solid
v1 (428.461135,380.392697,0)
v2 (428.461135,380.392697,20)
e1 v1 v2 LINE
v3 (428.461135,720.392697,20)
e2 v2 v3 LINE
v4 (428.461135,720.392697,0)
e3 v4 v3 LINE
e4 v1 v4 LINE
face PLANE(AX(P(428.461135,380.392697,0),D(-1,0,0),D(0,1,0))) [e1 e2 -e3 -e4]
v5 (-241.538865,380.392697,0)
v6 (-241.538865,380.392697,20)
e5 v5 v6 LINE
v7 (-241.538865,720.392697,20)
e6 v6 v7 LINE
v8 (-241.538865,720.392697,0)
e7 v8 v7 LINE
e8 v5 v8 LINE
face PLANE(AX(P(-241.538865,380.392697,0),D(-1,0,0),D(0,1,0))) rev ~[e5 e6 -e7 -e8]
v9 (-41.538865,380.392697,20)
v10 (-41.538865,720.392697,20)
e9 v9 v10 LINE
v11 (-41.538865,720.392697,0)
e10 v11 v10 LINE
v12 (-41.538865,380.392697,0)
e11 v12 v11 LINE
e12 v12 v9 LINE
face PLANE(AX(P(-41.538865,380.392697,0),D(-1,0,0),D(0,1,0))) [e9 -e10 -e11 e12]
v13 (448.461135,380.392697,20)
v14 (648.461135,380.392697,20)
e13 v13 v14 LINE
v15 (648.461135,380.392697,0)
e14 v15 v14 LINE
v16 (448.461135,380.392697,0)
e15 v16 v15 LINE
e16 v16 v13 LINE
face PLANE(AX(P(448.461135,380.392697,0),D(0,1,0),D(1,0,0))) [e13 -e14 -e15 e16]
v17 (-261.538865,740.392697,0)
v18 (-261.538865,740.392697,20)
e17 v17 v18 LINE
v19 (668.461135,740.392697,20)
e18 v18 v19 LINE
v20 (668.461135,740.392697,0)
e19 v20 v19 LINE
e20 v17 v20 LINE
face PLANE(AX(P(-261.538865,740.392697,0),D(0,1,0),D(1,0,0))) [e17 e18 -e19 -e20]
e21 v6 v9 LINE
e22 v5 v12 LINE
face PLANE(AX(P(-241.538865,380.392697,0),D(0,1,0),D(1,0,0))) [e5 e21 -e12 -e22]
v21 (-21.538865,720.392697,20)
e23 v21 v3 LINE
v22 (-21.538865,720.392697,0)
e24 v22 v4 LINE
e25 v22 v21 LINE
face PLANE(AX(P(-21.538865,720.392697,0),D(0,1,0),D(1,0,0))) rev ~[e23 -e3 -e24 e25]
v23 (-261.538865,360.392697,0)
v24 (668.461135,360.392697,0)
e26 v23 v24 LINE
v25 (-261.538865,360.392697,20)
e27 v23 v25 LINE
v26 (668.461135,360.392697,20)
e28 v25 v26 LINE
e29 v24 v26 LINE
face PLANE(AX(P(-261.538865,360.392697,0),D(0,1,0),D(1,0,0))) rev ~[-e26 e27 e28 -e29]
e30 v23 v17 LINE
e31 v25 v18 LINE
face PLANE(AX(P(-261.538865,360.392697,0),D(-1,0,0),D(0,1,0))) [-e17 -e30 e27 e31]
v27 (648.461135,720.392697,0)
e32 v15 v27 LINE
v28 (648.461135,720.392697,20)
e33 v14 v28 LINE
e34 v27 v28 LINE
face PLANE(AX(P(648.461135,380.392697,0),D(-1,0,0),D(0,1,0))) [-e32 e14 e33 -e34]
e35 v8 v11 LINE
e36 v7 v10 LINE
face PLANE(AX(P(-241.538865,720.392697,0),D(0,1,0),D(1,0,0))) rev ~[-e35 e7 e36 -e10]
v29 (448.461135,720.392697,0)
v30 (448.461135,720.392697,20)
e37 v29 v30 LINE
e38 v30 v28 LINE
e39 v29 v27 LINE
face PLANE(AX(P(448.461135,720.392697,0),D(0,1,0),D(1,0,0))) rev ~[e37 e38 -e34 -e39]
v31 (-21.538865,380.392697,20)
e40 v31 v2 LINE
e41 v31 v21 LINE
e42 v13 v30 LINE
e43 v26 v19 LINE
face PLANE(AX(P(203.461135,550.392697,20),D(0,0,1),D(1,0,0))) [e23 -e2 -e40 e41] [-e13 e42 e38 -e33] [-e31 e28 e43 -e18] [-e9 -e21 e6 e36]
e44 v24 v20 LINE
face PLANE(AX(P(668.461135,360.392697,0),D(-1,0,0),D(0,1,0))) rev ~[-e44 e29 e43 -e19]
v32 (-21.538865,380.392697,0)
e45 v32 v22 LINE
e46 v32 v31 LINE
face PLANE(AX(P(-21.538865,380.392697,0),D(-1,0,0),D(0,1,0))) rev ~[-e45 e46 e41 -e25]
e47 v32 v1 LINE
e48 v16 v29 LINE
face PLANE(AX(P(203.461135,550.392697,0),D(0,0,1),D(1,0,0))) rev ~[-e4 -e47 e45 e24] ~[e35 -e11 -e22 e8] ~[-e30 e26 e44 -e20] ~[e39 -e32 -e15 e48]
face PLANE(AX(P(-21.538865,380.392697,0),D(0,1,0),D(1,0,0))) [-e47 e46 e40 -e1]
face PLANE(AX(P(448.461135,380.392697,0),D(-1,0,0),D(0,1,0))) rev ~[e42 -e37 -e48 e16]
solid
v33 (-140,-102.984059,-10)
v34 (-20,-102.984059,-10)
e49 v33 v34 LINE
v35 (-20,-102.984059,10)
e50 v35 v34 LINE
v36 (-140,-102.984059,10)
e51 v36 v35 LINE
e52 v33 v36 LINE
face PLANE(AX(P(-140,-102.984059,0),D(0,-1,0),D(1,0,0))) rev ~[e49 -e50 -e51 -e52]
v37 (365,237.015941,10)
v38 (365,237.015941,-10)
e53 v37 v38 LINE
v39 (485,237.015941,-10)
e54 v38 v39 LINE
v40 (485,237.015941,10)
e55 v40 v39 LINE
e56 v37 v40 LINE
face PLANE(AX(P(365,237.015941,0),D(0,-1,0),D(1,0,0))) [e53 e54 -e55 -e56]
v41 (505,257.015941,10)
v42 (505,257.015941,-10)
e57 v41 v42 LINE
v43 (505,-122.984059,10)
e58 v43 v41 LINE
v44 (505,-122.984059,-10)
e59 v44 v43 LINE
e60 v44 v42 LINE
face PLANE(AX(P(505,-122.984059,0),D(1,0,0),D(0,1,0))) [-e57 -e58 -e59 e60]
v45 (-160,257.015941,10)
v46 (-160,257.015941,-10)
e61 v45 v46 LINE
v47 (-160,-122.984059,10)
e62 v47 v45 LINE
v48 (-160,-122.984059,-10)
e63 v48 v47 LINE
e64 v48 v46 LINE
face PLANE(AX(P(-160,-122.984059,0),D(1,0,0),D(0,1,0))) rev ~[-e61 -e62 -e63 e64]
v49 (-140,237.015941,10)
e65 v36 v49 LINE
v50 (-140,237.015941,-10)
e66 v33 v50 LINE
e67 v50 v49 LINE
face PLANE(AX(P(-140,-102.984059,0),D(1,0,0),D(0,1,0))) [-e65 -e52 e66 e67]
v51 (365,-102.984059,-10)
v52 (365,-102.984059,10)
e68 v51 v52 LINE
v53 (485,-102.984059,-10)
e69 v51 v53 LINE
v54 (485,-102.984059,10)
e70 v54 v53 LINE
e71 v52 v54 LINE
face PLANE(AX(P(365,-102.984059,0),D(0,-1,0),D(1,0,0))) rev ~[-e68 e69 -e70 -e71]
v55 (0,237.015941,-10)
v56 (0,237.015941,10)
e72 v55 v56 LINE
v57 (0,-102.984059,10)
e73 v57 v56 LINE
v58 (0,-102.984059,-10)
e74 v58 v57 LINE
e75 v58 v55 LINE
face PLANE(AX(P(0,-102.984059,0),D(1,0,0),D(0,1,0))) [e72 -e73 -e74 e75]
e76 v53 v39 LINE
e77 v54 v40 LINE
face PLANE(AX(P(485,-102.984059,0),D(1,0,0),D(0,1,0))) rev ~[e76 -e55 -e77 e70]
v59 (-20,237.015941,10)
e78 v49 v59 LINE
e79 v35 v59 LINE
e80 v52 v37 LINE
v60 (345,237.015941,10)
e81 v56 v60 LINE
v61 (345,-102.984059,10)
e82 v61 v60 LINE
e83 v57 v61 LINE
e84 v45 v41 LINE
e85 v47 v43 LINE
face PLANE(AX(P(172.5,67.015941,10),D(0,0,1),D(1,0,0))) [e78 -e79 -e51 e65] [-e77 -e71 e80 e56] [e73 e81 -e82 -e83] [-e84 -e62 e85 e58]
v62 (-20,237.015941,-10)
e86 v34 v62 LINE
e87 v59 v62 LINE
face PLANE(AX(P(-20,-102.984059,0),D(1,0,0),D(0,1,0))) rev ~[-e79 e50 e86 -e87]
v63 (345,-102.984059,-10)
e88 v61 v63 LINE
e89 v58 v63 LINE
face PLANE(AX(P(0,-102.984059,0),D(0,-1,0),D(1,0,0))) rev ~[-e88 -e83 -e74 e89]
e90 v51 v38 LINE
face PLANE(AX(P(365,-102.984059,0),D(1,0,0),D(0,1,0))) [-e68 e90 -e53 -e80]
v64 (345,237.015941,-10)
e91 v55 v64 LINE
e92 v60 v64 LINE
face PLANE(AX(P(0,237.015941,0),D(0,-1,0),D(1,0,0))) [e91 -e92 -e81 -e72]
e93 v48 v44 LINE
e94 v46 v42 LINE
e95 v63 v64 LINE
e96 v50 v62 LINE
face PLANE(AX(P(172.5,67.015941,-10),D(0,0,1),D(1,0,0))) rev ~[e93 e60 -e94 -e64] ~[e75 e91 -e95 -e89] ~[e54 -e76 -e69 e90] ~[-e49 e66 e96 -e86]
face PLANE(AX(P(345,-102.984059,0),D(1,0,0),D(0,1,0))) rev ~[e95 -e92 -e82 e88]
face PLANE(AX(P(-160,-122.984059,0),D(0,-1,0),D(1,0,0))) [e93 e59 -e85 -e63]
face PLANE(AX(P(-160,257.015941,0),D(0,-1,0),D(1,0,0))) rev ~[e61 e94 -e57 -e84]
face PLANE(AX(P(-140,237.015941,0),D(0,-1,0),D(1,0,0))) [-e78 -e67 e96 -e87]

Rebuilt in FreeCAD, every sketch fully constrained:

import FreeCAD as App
import Part
import Sketcher
Q = App.Units.Quantity

doc = App.newDocument("Part")
body = doc.addObject("PartDesign::Body", "Body")

# Sketch on XY plane
sketch1 = body.newObject("Sketcher::SketchObject", "Sketch")
sketch1.AttachmentSupport = (doc.getObject("XY_Plane"), [""])
sketch1.MapMode = "FlatFace"
sketch1.addGeometry([
    Part.LineSegment(App.Vector(-160, 257, 0), App.Vector(-160, -123, 0)),  # 0
    Part.LineSegment(App.Vector(-160, -123, 0), App.Vector(505, -123, 0)),  # 1
    Part.LineSegment(App.Vector(505, -123, 0), App.Vector(505, 257, 0)),  # 2
    Part.LineSegment(App.Vector(505, 257, 0), App.Vector(-160, 257, 0)),  # 3
    Part.LineSegment(App.Vector(-20, -103, 0), App.Vector(-140, -103, 0)),  # 4
    Part.LineSegment(App.Vector(-140, -103, 0), App.Vector(-140, 237, 0)),  # 5
    Part.LineSegment(App.Vector(-140, 237, 0), App.Vector(-20, 237, 0)),  # 6
    Part.LineSegment(App.Vector(-20, 237, 0), App.Vector(-20, -103, 0)),  # 7
    Part.LineSegment(App.Vector(345, -103, 0), App.Vector(0, -103, 0)),  # 8
    Part.LineSegment(App.Vector(0, -103, 0), App.Vector(0, 237, 0)),  # 9
    Part.LineSegment(App.Vector(0, 237, 0), App.Vector(345, 237, 0)),  # 10
    Part.LineSegment(App.Vector(345, 237, 0), App.Vector(345, -103, 0)),  # 11
    Part.LineSegment(App.Vector(485, -103, 0), App.Vector(365, -103, 0)),  # 12
    Part.LineSegment(App.Vector(365, -103, 0), App.Vector(365, 237, 0)),  # 13
    Part.LineSegment(App.Vector(365, 237, 0), App.Vector(485, 237, 0)),  # 14
    Part.LineSegment(App.Vector(485, 237, 0), App.Vector(485, -103, 0)),  # 15
], False)
sketch1.addConstraint([
    Sketcher.Constraint("Coincident", 0, 2, 1, 1),
    Sketcher.Constraint("Coincident", 1, 2, 2, 1),
    Sketcher.Constraint("Coincident", 2, 2, 3, 1),
    Sketcher.Constraint("Coincident", 3, 2, 0, 1),
    Sketcher.Constraint("Coincident", 4, 2, 5, 1),
    Sketcher.Constraint("Coincident", 5, 2, 6, 1),
    Sketcher.Constraint("Coincident", 6, 2, 7, 1),
    Sketcher.Constraint("Coincident", 7, 2, 4, 1),
    Sketcher.Constraint("Coincident", 8, 2, 9, 1),
    Sketcher.Constraint("Coincident", 9, 2, 10, 1),
    Sketcher.Constraint("Coincident", 10, 2, 11, 1),
    Sketcher.Constraint("Coincident", 11, 2, 8, 1),
    Sketcher.Constraint("Coincident", 12, 2, 13, 1),
    Sketcher.Constraint("Coincident", 13, 2, 14, 1),
    Sketcher.Constraint("Coincident", 14, 2, 15, 1),
    Sketcher.Constraint("Coincident", 15, 2, 12, 1),
    Sketcher.Constraint("Vertical", 0),
    Sketcher.Constraint("Horizontal", 1),
    Sketcher.Constraint("Vertical", 2),
    Sketcher.Constraint("Horizontal", 3),
    Sketcher.Constraint("Horizontal", 4),
    Sketcher.Constraint("Vertical", 5),
    Sketcher.Constraint("Horizontal", 6),
    Sketcher.Constraint("Vertical", 7),
    Sketcher.Constraint("Horizontal", 8),
    Sketcher.Constraint("Vertical", 9),
    Sketcher.Constraint("Horizontal", 10),
    Sketcher.Constraint("Vertical", 11),
    Sketcher.Constraint("Horizontal", 12),
    Sketcher.Constraint("Vertical", 13),
    Sketcher.Constraint("Horizontal", 14),
    Sketcher.Constraint("Vertical", 15),
    Sketcher.Constraint("PointOnObject", 8, 2, -2),
    Sketcher.Constraint("Horizontal", 7, 2, 8, 2),
    Sketcher.Constraint("Horizontal", 6, 2, 9, 2),
    Sketcher.Constraint("Horizontal", 11, 2, 12, 2),
    Sketcher.Constraint("Horizontal", 10, 2, 13, 2),
    Sketcher.Constraint("Equal", 6, 12),
    Sketcher.Constraint("DistanceX", 1, 1, 1, 2, Q("665 mm")),
    Sketcher.Constraint("DistanceX", 4, 2, 4, 1, Q("120 mm")),
    Sketcher.Constraint("DistanceX", 8, 2, 8, 1, Q("345 mm")),
    Sketcher.Constraint("DistanceY", 0, 2, 0, 1, Q("380 mm")),
    Sketcher.Constraint("DistanceY", 5, 1, 5, 2, Q("340 mm")),
    Sketcher.Constraint("DistanceX", 0, 2, -1, 1, Q("160 mm")),
    Sketcher.Constraint("DistanceX", 4, 2, -1, 1, Q("140 mm")),
    Sketcher.Constraint("DistanceX", -1, 1, 12, 2, Q("365 mm")),
    Sketcher.Constraint("DistanceY", 0, 2, 4, 2, Q("20 mm")),
    Sketcher.Constraint("DistanceY", 0, 2, -1, 1, Q("122.984059 mm")),
])
pad1 = body.newObject("PartDesign::Pad", "Pad")
pad1.Profile = sketch1
pad1.Length = 20
pad1.Midplane = True
body2 = doc.addObject("PartDesign::Body", "Body001")

# Sketch on XY plane
sketch2 = body2.newObject("Sketcher::SketchObject", "Sketch001")
sketch2.AttachmentSupport = (doc.getObject("XY_Plane001"), [""])
sketch2.MapMode = "FlatFace"
sketch2.addGeometry([
    Part.LineSegment(App.Vector(-262, 740, 0), App.Vector(-262, 360, 0)),  # 0
    Part.LineSegment(App.Vector(-262, 360, 0), App.Vector(668, 360, 0)),  # 1
    Part.LineSegment(App.Vector(668, 360, 0), App.Vector(668, 740, 0)),  # 2
    Part.LineSegment(App.Vector(668, 740, 0), App.Vector(-262, 740, 0)),  # 3
    Part.LineSegment(App.Vector(-42, 380, 0), App.Vector(-242, 380, 0)),  # 4
    Part.LineSegment(App.Vector(-242, 380, 0), App.Vector(-242, 720, 0)),  # 5
    Part.LineSegment(App.Vector(-242, 720, 0), App.Vector(-42, 720, 0)),  # 6
    Part.LineSegment(App.Vector(-42, 720, 0), App.Vector(-42, 380, 0)),  # 7
    Part.LineSegment(App.Vector(428, 380, 0), App.Vector(-22, 380, 0)),  # 8
    Part.LineSegment(App.Vector(-22, 380, 0), App.Vector(-22, 720, 0)),  # 9
    Part.LineSegment(App.Vector(-22, 720, 0), App.Vector(428, 720, 0)),  # 10
    Part.LineSegment(App.Vector(428, 720, 0), App.Vector(428, 380, 0)),  # 11
    Part.LineSegment(App.Vector(648, 380, 0), App.Vector(448, 380, 0)),  # 12
    Part.LineSegment(App.Vector(448, 380, 0), App.Vector(448, 720, 0)),  # 13
    Part.LineSegment(App.Vector(448, 720, 0), App.Vector(648, 720, 0)),  # 14
    Part.LineSegment(App.Vector(648, 720, 0), App.Vector(648, 380, 0)),  # 15
], False)
sketch2.addConstraint([
    Sketcher.Constraint("Coincident", 0, 2, 1, 1),
    Sketcher.Constraint("Coincident", 1, 2, 2, 1),
    Sketcher.Constraint("Coincident", 2, 2, 3, 1),
    Sketcher.Constraint("Coincident", 3, 2, 0, 1),
    Sketcher.Constraint("Coincident", 4, 2, 5, 1),
    Sketcher.Constraint("Coincident", 5, 2, 6, 1),
    Sketcher.Constraint("Coincident", 6, 2, 7, 1),
    Sketcher.Constraint("Coincident", 7, 2, 4, 1),
    Sketcher.Constraint("Coincident", 8, 2, 9, 1),
    Sketcher.Constraint("Coincident", 9, 2, 10, 1),
    Sketcher.Constraint("Coincident", 10, 2, 11, 1),
    Sketcher.Constraint("Coincident", 11, 2, 8, 1),
    Sketcher.Constraint("Coincident", 12, 2, 13, 1),
    Sketcher.Constraint("Coincident", 13, 2, 14, 1),
    Sketcher.Constraint("Coincident", 14, 2, 15, 1),
    Sketcher.Constraint("Coincident", 15, 2, 12, 1),
    Sketcher.Constraint("Vertical", 0),
    Sketcher.Constraint("Horizontal", 1),
    Sketcher.Constraint("Vertical", 2),
    Sketcher.Constraint("Horizontal", 3),
    Sketcher.Constraint("Horizontal", 4),
    Sketcher.Constraint("Vertical", 5),
    Sketcher.Constraint("Horizontal", 6),
    Sketcher.Constraint("Vertical", 7),
    Sketcher.Constraint("Horizontal", 8),
    Sketcher.Constraint("Vertical", 9),
    Sketcher.Constraint("Horizontal", 10),
    Sketcher.Constraint("Vertical", 11),
    Sketcher.Constraint("Horizontal", 12),
    Sketcher.Constraint("Vertical", 13),
    Sketcher.Constraint("Horizontal", 14),
    Sketcher.Constraint("Vertical", 15),
    Sketcher.Constraint("Horizontal", 7, 2, 8, 2),
    Sketcher.Constraint("Horizontal", 6, 2, 9, 2),
    Sketcher.Constraint("Horizontal", 11, 2, 12, 2),
    Sketcher.Constraint("Horizontal", 10, 2, 13, 2),
    Sketcher.Constraint("Equal", 6, 12),
    Sketcher.Constraint("DistanceX", 1, 1, 1, 2, Q("930 mm")),
    Sketcher.Constraint("DistanceX", 4, 2, 4, 1, Q("200 mm")),
    Sketcher.Constraint("DistanceX", 8, 2, 8, 1, Q("450 mm")),
    Sketcher.Constraint("DistanceY", 0, 2, 0, 1, Q("380 mm")),
    Sketcher.Constraint("DistanceY", 5, 1, 5, 2, Q("340 mm")),
    Sketcher.Constraint("DistanceX", 0, 2, 4, 2, Q("20 mm")),
    Sketcher.Constraint("DistanceY", 0, 2, 4, 2, Q("20 mm")),
    Sketcher.Constraint("DistanceX", 7, 2, 8, 2, Q("20 mm")),
    Sketcher.Constraint("DistanceX", 11, 2, 12, 2, Q("20 mm")),
    Sketcher.Constraint("DistanceX", 0, 2, -1, 1, Q("261.538865 mm")),
    Sketcher.Constraint("DistanceY", -1, 1, 0, 2, Q("360.392697 mm")),
])
pad2 = body2.newObject("PartDesign::Pad", "Pad001")
pad2.Profile = sketch2
pad2.Length = 20

doc.recompute()
